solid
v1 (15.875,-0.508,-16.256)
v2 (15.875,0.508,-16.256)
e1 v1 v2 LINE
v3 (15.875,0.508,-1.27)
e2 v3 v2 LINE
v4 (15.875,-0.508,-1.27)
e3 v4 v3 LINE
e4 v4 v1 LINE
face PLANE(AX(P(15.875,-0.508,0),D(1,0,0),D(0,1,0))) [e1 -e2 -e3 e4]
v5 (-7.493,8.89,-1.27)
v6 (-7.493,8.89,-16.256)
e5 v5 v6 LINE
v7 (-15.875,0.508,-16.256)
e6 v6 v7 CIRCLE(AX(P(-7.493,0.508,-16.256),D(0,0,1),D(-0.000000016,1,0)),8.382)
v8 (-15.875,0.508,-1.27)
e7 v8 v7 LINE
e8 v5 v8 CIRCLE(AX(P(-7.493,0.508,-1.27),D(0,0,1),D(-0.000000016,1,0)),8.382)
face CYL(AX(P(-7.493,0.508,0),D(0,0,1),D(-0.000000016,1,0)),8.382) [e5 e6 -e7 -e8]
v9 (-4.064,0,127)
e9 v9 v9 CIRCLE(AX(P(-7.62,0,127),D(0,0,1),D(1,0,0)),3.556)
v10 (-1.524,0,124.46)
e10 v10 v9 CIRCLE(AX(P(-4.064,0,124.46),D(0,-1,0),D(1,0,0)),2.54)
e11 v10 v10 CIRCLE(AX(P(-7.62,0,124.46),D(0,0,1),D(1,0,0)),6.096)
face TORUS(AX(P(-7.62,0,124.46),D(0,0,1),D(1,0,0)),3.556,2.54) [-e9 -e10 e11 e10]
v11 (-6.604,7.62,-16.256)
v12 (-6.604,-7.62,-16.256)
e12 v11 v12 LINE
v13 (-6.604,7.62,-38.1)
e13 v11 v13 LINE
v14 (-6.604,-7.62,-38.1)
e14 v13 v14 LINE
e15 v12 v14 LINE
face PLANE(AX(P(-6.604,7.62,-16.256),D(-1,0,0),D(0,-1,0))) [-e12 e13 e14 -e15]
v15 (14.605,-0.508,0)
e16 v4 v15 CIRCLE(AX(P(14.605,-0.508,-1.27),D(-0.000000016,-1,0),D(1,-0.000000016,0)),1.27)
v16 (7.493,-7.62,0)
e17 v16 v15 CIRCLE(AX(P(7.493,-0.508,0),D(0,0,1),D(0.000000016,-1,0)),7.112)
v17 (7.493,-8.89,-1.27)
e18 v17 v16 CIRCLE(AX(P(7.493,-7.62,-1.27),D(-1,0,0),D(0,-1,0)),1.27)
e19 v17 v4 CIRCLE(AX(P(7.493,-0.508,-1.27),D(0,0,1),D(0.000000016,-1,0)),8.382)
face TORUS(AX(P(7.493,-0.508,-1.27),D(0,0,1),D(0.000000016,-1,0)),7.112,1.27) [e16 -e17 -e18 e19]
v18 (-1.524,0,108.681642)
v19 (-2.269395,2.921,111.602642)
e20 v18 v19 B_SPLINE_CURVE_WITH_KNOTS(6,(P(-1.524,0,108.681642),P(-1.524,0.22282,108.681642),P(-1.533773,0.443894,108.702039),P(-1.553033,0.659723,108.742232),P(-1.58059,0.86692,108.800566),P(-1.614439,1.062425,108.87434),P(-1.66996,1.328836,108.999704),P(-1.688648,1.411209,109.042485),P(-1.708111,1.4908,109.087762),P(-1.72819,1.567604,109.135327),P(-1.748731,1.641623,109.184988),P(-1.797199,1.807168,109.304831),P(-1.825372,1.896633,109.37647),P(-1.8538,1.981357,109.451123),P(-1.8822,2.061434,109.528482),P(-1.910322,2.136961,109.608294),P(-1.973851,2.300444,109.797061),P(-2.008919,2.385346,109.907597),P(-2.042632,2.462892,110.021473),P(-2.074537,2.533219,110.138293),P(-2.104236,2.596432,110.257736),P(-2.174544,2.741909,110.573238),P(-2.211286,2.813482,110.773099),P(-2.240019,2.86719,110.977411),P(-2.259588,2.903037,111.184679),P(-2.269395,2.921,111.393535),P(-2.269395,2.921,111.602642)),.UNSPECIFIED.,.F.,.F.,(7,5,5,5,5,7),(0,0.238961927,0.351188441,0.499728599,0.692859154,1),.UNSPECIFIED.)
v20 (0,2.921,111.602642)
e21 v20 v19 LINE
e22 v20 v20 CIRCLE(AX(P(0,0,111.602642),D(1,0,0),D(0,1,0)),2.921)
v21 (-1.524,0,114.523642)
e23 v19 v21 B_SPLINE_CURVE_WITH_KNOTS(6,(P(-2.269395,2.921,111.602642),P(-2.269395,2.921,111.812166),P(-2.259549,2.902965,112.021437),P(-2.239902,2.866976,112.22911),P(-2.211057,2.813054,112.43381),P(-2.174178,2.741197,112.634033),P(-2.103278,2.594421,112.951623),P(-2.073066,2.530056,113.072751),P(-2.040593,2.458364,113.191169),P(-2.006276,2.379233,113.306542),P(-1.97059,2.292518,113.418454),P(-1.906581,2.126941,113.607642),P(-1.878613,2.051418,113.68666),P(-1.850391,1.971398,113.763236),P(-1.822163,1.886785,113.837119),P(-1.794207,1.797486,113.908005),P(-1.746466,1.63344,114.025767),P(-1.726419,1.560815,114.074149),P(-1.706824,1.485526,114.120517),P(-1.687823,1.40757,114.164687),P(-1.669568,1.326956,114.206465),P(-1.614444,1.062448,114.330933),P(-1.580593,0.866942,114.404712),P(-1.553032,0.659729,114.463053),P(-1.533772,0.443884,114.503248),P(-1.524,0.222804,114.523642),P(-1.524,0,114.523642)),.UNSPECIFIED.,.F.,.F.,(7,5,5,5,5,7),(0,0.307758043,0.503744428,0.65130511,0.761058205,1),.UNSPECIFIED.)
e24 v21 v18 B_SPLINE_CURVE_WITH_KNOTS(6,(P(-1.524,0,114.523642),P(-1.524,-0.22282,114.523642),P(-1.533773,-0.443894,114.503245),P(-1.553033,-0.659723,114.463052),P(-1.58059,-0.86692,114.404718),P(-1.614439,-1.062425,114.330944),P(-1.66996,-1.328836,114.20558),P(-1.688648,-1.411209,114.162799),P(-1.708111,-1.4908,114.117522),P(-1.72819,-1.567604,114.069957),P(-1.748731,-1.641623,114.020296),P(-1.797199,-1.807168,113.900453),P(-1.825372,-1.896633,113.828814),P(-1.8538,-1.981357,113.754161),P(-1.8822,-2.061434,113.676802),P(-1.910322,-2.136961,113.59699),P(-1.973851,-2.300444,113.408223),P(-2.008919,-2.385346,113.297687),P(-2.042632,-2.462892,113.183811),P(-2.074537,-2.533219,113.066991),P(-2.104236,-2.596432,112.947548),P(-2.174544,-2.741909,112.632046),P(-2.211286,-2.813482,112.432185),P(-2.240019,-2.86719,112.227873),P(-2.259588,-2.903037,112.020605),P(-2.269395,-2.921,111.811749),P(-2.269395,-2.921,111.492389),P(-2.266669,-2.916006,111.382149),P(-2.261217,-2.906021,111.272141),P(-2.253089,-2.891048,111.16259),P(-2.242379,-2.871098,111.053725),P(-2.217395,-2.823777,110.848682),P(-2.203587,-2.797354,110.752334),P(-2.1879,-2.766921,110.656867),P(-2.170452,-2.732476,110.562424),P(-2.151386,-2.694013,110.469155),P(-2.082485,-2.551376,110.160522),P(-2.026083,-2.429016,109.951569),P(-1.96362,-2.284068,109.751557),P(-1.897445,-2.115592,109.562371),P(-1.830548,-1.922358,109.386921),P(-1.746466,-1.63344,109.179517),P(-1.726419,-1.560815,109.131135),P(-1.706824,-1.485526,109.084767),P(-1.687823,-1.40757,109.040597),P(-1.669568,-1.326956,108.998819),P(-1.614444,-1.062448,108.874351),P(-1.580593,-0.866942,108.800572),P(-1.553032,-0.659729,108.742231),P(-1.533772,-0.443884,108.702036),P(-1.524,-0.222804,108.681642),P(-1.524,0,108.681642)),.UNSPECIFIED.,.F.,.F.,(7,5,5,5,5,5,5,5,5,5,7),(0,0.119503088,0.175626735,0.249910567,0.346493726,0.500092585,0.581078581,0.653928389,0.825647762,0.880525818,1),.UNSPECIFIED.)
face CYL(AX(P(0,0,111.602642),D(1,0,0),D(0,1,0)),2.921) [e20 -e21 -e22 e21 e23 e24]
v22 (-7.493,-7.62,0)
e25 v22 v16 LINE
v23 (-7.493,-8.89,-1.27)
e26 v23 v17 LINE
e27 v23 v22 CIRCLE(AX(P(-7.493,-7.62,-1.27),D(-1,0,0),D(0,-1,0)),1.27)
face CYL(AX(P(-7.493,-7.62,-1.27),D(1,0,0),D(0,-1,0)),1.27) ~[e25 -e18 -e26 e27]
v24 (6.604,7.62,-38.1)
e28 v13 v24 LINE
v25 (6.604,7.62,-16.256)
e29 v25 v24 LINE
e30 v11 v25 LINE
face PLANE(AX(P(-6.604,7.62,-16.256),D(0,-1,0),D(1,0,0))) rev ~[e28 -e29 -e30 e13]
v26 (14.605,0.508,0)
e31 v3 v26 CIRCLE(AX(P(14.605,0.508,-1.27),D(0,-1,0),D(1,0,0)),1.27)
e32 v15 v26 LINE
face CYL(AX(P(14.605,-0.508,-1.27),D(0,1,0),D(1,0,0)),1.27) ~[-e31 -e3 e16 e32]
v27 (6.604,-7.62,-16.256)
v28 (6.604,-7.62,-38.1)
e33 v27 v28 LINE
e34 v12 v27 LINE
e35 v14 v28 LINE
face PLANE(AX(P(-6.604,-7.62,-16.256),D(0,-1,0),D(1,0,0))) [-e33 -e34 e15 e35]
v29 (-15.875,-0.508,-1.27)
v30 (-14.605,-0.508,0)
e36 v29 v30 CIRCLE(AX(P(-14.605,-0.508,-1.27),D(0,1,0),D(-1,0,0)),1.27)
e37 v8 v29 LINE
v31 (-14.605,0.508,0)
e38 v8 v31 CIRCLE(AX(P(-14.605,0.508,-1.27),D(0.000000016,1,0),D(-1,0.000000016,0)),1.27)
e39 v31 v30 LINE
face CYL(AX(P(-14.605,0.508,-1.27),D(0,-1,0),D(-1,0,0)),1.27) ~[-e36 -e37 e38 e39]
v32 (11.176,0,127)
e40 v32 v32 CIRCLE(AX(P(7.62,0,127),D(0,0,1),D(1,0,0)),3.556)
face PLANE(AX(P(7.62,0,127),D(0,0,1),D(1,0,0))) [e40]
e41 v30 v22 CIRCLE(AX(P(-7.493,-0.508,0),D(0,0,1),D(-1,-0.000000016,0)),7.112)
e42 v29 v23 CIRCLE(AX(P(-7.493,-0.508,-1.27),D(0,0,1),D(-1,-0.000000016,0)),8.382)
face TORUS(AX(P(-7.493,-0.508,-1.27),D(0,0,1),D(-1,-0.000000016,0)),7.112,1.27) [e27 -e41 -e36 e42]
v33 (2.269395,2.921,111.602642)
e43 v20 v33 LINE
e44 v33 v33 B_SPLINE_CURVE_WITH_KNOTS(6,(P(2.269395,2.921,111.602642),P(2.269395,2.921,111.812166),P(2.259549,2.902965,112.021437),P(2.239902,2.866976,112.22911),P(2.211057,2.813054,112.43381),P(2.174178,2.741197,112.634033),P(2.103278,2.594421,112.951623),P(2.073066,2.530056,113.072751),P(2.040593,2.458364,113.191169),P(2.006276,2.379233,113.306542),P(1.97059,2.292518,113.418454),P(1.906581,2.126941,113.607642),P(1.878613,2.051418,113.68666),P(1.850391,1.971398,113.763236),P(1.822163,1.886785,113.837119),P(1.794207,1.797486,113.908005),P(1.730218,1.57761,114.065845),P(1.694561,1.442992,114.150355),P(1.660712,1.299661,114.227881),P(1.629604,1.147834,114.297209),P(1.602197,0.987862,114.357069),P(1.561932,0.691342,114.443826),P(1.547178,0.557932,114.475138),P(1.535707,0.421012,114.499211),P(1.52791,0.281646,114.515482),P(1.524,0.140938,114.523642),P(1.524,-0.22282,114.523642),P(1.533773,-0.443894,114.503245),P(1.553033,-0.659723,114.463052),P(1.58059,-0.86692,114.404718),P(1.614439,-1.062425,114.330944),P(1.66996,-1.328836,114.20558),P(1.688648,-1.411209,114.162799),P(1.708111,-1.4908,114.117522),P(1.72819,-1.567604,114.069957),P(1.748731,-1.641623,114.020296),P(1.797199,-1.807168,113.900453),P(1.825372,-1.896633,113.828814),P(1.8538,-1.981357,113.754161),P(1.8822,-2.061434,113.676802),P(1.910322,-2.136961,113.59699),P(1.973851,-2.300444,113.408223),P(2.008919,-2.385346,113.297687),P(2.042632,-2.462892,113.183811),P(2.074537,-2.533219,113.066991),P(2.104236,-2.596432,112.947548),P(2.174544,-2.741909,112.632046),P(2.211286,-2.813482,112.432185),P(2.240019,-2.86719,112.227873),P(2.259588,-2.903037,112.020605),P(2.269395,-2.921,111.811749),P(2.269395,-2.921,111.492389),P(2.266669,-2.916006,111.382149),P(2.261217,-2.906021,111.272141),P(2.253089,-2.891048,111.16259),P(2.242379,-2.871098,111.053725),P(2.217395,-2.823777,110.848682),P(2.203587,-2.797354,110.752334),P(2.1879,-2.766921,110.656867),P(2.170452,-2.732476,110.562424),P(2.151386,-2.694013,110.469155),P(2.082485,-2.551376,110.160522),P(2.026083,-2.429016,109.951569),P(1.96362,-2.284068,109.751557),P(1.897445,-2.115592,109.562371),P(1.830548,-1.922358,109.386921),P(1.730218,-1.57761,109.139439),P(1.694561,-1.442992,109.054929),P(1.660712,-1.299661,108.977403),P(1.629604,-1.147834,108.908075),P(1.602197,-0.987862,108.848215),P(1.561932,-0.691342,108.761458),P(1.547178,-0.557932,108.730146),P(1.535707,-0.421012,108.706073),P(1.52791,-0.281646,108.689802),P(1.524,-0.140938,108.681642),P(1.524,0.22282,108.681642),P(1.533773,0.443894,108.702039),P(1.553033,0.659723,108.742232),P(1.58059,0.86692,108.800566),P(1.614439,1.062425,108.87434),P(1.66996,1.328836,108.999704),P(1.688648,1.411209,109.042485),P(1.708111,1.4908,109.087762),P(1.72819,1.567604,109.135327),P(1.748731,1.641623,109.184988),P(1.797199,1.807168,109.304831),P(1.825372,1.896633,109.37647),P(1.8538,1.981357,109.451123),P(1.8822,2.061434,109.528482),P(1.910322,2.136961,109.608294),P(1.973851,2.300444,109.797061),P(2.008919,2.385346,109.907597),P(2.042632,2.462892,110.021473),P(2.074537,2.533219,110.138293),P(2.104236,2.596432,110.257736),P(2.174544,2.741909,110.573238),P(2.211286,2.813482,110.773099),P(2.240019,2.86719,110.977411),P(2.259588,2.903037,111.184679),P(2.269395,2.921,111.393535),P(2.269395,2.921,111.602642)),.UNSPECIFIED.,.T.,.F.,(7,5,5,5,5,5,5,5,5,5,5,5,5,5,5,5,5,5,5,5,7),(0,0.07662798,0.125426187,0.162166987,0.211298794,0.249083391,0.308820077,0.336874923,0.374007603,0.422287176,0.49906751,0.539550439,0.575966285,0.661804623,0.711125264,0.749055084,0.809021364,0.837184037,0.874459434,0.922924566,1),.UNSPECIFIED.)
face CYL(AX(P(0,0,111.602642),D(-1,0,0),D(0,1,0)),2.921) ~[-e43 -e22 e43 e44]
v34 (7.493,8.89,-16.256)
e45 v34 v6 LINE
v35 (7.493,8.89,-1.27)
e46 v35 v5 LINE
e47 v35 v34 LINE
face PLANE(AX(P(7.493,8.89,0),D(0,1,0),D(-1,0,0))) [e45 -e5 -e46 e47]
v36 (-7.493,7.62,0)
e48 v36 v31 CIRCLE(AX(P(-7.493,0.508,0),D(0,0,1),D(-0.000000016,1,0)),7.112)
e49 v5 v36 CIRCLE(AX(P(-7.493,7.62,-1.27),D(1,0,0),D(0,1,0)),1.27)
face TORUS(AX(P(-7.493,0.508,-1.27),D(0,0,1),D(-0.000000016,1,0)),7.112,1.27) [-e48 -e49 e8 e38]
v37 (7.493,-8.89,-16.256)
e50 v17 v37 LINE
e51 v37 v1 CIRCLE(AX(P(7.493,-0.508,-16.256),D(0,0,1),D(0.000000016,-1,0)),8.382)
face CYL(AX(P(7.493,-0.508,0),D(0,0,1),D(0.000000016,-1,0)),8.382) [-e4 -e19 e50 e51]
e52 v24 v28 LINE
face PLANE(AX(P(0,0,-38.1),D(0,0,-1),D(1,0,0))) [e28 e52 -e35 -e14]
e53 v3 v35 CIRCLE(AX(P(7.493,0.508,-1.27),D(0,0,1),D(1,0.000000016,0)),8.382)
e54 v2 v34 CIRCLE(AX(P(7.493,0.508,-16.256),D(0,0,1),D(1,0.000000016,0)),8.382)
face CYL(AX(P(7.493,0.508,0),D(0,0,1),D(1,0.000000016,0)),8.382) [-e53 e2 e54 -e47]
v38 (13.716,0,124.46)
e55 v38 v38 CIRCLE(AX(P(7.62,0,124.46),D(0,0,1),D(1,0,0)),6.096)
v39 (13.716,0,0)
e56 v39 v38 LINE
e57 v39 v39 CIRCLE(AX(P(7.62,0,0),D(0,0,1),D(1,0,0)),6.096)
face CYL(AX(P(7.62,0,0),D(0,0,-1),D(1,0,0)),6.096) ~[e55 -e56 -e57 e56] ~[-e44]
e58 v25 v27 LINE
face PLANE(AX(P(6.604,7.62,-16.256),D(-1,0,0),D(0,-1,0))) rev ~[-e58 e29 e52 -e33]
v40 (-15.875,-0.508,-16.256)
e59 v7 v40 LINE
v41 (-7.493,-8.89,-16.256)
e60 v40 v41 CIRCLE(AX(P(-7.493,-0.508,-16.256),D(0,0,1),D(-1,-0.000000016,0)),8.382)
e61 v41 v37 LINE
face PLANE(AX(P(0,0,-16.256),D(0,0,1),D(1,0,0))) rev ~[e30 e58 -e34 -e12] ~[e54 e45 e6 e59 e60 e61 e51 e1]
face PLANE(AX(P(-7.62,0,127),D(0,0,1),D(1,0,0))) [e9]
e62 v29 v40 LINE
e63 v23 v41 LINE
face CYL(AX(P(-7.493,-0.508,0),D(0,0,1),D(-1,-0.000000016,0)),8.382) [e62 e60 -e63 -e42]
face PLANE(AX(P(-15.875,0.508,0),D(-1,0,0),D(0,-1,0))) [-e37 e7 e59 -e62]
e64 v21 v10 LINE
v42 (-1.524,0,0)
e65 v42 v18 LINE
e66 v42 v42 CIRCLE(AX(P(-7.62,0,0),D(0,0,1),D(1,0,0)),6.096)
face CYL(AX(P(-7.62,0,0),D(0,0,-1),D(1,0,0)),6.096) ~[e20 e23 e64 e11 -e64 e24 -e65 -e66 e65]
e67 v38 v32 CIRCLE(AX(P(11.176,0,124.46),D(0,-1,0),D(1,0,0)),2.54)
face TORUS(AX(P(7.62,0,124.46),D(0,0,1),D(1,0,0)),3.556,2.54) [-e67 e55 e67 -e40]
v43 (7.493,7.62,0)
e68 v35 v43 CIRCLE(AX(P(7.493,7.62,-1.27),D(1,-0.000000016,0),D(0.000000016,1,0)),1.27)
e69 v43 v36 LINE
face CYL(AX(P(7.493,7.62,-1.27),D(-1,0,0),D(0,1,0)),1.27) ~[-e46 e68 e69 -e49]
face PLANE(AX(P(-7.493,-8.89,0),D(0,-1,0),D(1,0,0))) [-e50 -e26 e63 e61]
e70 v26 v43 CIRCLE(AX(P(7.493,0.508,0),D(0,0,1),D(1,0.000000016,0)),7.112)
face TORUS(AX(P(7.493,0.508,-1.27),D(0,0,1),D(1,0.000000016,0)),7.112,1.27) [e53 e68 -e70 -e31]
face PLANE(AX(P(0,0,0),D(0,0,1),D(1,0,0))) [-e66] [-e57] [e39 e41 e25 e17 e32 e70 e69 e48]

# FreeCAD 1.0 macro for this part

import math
import FreeCAD as App
import Part
import Sketcher

V = App.Vector
Q = App.Units.Quantity


def edges_at(feature, points):
    """Names of the edges that pass closest to the given points."""
    edges = feature.Shape.Edges
    near = lambda p: min(range(len(edges)), key=lambda i: edges[i].distToShape(Part.Vertex(*p))[0])
    return sorted({f"Edge{near(p) + 1}" for p in points})

doc = App.newDocument("Part")
params = doc.addObject("Spreadsheet::Sheet", "Params")
for row, (alias, value) in enumerate([
    ("sketch1_diameter", "0.48 in"),
    ("pad1_length", "5 in"),
    ("sketch2_diameter", "0.23 in"),
    ("pad2_length", "0.2 in"),
    ("pad2_length2", "0.2 in"),
    ("fillet_radius", "0.1 in"),
    ("sketch3_radius", "0.33 in"),
    ("sketch3_width", "0.59 in"),
    ("sketch3_height", "0.04 in"),
    ("pad3_length", "0.64 in"),
    ("fillet2_radius", "0.05 in"),
    ("sketch4_height", "0.6 in"),
    ("sketch4_width", "0.52 in"),
    ("pad4_length", "0.86 in"),
], start=1):
    params.set(f"A{row}", alias)
    params.set(f"B{row}", "=" + value)
    params.setAlias(f"B{row}", alias)

body = doc.addObject("PartDesign::Body", "Body")
body.AllowCompound = True

# Sketch on XY plane
sketch1 = body.newObject("Sketcher::SketchObject", "Sketch")
sketch1.AttachmentSupport = (doc.getObject("XY_Plane"), [""])
sketch1.MapMode = "FlatFace"
sketch1.addGeometry([
    Part.Circle(V(8, 0, 0), V(0, 0, 1), 6),
    Part.Circle(V(-8, 0, 0), V(0, 0, 1), 6),
], False)
sketch1.addConstraint([
    Sketcher.Constraint("Equal", 0, 1),
    Sketcher.Constraint("Symmetric", 0, 3, 1, 3, -1, 1),
    Sketcher.Constraint("PointOnObject", 0, 3, -1),
    Sketcher.Constraint("Diameter", 0, Q("0.48 in")),
    Sketcher.Constraint("DistanceX", -1, 1, 0, 3, Q("0.3 in")),
])
sketch1.setExpression("Constraints[3]", "Params.sketch1_diameter")
pad1 = body.newObject("PartDesign::Pad", "Pad")
pad1.Profile = sketch1
pad1.setExpression("Length", "Params.pad1_length")

# Sketch on YZ plane
sketch2 = body.newObject("Sketcher::SketchObject", "Sketch001")
sketch2.AttachmentSupport = (doc.getObject("YZ_Plane"), [""])
sketch2.MapMode = "FlatFace"
sketch2.addGeometry(Part.Circle(V(0, 111.6, 0), V(0, 0, 1), 2.9), False)
sketch2.addConstraint([
    Sketcher.Constraint("PointOnObject", 0, 3, -2),
    Sketcher.Constraint("Diameter", 0, Q("0.23 in")),
    Sketcher.Constraint("DistanceY", -1, 1, 0, 3, Q("111.602642 mm")),
])
sketch2.setExpression("Constraints[1]", "Params.sketch2_diameter")
pad2 = body.newObject("PartDesign::Pad", "Pad001")
pad2.Profile = sketch2
pad2.Type = "TwoLengths"
pad2.setExpression("Length", "Params.pad2_length")
pad2.setExpression("Length2", "Params.pad2_length2")
doc.recompute()

fillet = body.newObject("PartDesign::Fillet", "Fillet")
fillet.Base = (pad2, edges_at(pad2, [(-13.716, 0, 127), (1.524, 0, 127)]))
fillet.setExpression("Radius", "Params.fillet_radius")

# Sketch on XY plane
sketch3 = body.newObject("Sketcher::SketchObject", "Sketch002")
sketch3.AttachmentSupport = (doc.getObject("XY_Plane"), [""])
sketch3.MapMode = "FlatFace"
sketch3.addGeometry([
    Part.ArcOfCircle(Part.Circle(V(-7.5, -0.5, 0), V(0, 0, 1), 8.4), math.radians(-180), math.radians(-90)),  # 0
    Part.LineSegment(V(-7.5, -8.9, 0), V(7.5, -8.9, 0)),  # 1
    Part.ArcOfCircle(Part.Circle(V(7.5, -0.5, 0), V(0, 0, 1), 8.4), math.radians(-90), math.radians(0)),  # 2
    Part.LineSegment(V(15.9, -0.5, 0), V(15.9, 0.5, 0)),  # 3
    Part.ArcOfCircle(Part.Circle(V(7.5, 0.5, 0), V(0, 0, 1), 8.4), math.radians(0), math.radians(90)),  # 4
    Part.LineSegment(V(7.5, 8.9, 0), V(-7.5, 8.9, 0)),  # 5
    Part.ArcOfCircle(Part.Circle(V(-7.5, 0.5, 0), V(0, 0, 1), 8.4), math.radians(90), math.radians(180)),  # 6
    Part.LineSegment(V(-15.9, 0.5, 0), V(-15.9, -0.5, 0)),  # 7
], False)
sketch3.addConstraint([
    Sketcher.Constraint("Tangent", 0, 2, 1, 1),
    Sketcher.Constraint("Tangent", 1, 2, 2, 1),
    Sketcher.Constraint("Tangent", 2, 2, 3, 1),
    Sketcher.Constraint("Tangent", 3, 2, 4, 1),
    Sketcher.Constraint("Tangent", 4, 2, 5, 1),
    Sketcher.Constraint("Tangent", 5, 2, 6, 1),
    Sketcher.Constraint("Tangent", 6, 2, 7, 1),
    Sketcher.Constraint("Tangent", 7, 2, 0, 1),
    Sketcher.Constraint("Horizontal", 1),
    Sketcher.Constraint("Vertical", 3),
    Sketcher.Constraint("Horizontal", 5),
    Sketcher.Constraint("Vertical", 7),
    Sketcher.Constraint("Equal", 0, 2),
    Sketcher.Constraint("Equal", 2, 4),
    Sketcher.Constraint("Equal", 4, 6),
    Sketcher.Constraint("Symmetric", 0, 3, 4, 3, -1, 1),
    Sketcher.Constraint("Radius", 0, Q("0.33 in")),
    Sketcher.Constraint("DistanceX", 1, 1, 1, 2, Q("0.59 in")),
    Sketcher.Constraint("DistanceY", 3, 1, 3, 2, Q("0.04 in")),
])
sketch3.setExpression("Constraints[16]", "Params.sketch3_radius")
sketch3.setExpression("Constraints[17]", "Params.sketch3_width")
sketch3.setExpression("Constraints[18]", "Params.sketch3_height")
pad3 = body.newObject("PartDesign::Pad", "Pad002")
pad3.Profile = sketch3
pad3.setExpression("Length", "Params.pad3_length")
pad3.Reversed = True
doc.recompute()

fillet2 = body.newObject("PartDesign::Fillet", "Fillet001")
fillet2.Base = (pad3, edges_at(pad3, [(0, -8.89, 0)]))
fillet2.setExpression("Radius", "Params.fillet2_radius")

# Sketch on XY plane
sketch4 = body.newObject("Sketcher::SketchObject", "Sketch003")
sketch4.AttachmentSupport = (doc.getObject("XY_Plane"), [""])
sketch4.MapMode = "FlatFace"
sketch4.AttachmentOffset = App.Placement(V(0, 0, -0.64 * 25.4), App.Rotation())
sketch4.addGeometry([
    Part.LineSegment(V(-7, -8, 0), V(-7, 8, 0)),
    Part.LineSegment(V(-7, 8, 0), V(7, 8, 0)),
    Part.LineSegment(V(7, 8, 0), V(7, -8, 0)),
    Part.LineSegment(V(7, -8, 0), V(-7, -8, 0)),
], False)
sketch4.addConstraint([
    Sketcher.Constraint("Coincident", 0, 2, 1, 1),
    Sketcher.Constraint("Coincident", 1, 2, 2, 1),
    Sketcher.Constraint("Coincident", 2, 2, 3, 1),
    Sketcher.Constraint("Coincident", 3, 2, 0, 1),
    Sketcher.Constraint("Vertical", 0),
    Sketcher.Constraint("Horizontal", 1),
    Sketcher.Constraint("Vertical", 2),
    Sketcher.Constraint("Horizontal", 3),
    Sketcher.Constraint("Symmetric", 0, 2, 2, 2, -1, 1),
    Sketcher.Constraint("DistanceY", 0, 1, 0, 2, Q("0.6 in")),
    Sketcher.Constraint("DistanceX", 1, 1, 1, 2, Q("0.52 in")),
])
sketch4.setExpression("Constraints[9]", "Params.sketch4_height")
sketch4.setExpression("Constraints[10]", "Params.sketch4_width")
pad4 = body.newObject("PartDesign::Pad", "Pad003")
pad4.Profile = sketch4
pad4.setExpression("Length", "Params.pad4_length")
pad4.Reversed = True

doc.recompute()
